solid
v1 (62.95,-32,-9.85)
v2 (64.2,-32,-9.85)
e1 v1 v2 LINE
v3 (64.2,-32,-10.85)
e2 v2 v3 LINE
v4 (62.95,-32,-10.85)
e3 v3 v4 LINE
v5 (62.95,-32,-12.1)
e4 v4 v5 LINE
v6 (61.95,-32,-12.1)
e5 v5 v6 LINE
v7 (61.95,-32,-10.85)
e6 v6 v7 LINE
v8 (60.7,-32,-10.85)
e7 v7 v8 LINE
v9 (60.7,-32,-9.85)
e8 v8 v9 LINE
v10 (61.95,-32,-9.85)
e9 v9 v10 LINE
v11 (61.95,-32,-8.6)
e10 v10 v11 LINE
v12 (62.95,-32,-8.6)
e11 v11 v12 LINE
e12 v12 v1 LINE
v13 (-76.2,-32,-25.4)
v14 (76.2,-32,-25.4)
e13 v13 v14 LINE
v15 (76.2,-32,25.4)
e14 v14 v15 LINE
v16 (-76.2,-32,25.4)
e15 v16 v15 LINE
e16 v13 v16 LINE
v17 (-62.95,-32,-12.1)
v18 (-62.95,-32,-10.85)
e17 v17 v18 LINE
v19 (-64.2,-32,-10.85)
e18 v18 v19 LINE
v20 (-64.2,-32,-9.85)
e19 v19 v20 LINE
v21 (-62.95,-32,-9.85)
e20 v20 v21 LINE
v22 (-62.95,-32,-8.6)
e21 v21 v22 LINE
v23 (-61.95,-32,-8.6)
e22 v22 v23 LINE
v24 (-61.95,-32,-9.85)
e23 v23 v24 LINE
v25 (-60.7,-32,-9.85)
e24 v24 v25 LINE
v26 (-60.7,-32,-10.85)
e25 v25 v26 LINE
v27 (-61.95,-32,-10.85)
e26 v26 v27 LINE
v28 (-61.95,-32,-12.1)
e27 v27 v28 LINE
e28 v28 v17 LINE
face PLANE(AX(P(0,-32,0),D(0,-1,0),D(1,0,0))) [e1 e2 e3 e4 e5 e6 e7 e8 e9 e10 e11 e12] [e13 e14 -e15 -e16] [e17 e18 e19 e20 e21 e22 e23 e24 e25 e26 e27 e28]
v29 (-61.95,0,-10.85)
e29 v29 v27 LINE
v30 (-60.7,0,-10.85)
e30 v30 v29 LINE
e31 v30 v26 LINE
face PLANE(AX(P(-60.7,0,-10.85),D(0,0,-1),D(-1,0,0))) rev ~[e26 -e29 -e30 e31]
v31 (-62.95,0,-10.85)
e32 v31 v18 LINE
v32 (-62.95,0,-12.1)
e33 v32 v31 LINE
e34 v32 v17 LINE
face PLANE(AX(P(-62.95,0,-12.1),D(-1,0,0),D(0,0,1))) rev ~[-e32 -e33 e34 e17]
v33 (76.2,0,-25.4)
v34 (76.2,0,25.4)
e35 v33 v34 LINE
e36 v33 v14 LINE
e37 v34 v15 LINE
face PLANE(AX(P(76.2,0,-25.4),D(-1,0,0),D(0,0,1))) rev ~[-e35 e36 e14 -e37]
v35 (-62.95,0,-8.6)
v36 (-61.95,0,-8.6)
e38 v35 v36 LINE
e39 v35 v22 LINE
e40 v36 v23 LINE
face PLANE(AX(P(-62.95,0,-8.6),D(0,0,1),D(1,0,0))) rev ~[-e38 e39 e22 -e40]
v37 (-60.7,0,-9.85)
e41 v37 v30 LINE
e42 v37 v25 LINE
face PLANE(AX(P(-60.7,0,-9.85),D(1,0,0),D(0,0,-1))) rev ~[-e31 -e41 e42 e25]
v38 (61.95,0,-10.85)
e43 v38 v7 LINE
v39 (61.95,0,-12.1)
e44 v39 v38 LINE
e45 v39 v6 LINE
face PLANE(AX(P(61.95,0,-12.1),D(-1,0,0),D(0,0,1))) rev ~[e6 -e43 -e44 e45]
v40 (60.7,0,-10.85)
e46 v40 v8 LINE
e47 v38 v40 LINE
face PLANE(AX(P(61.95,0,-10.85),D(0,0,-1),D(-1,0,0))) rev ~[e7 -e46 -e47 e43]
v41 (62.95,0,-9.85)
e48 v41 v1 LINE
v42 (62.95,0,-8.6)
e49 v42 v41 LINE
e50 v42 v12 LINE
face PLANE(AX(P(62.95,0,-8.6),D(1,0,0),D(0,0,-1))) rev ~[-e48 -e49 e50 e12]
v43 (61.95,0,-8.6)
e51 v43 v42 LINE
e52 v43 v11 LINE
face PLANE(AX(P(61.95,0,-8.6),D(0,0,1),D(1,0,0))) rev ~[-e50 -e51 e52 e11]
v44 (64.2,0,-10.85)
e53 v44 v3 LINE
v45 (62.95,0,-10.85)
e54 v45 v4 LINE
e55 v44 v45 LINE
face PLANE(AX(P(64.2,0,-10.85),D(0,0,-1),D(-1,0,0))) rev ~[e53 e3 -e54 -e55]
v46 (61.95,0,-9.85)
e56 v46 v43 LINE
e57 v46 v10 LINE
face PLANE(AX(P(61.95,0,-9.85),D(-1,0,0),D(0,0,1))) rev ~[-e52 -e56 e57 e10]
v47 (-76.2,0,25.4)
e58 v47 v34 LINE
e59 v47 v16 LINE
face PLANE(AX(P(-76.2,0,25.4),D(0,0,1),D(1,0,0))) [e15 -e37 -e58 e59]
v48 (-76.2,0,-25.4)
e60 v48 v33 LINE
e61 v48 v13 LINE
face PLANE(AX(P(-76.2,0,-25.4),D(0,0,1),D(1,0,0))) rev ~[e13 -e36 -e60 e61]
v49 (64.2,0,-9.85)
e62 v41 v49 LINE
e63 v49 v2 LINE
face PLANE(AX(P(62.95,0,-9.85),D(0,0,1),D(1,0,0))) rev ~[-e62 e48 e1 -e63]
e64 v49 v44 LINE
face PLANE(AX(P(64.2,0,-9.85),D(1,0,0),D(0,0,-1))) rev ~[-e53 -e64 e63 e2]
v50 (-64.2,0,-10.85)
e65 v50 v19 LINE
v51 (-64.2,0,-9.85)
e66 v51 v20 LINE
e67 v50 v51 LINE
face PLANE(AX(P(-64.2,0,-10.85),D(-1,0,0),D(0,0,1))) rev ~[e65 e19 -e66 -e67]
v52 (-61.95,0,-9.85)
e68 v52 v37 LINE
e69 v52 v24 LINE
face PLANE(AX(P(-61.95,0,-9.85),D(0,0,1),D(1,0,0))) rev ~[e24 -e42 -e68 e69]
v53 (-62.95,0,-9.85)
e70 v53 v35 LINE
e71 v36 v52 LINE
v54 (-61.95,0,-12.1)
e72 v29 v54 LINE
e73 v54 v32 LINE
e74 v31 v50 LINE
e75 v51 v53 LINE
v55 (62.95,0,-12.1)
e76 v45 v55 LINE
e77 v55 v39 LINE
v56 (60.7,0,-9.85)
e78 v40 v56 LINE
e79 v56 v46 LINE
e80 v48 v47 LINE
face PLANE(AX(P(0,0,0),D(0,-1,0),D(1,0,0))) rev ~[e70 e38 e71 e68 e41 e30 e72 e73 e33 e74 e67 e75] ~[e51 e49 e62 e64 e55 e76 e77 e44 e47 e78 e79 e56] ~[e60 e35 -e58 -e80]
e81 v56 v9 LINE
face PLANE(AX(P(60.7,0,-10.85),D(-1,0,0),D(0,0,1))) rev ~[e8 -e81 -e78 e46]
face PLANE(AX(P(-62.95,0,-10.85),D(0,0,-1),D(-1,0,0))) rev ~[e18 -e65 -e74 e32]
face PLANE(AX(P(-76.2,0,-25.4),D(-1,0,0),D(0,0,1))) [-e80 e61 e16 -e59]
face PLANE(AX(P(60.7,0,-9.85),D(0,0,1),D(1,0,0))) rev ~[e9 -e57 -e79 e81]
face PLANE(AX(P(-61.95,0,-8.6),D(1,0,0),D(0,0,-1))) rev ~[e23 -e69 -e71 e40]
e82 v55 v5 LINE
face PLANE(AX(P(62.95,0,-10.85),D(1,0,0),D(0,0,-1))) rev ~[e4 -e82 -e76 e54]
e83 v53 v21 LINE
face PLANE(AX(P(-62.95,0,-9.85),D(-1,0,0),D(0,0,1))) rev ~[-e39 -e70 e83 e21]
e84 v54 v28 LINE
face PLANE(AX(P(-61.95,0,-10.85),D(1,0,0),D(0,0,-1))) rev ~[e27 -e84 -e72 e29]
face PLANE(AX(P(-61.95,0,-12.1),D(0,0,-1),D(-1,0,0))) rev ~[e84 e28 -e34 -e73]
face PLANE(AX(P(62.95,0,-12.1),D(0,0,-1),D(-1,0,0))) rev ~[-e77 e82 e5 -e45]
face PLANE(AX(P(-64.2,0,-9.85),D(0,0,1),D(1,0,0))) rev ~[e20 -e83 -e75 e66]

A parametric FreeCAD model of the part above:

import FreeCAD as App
import Part
import Sketcher
from FreeCAD import Vector
Q = App.Units.Quantity


def add_polygon(sketch, points):
    """Adds a closed chain of lines whose ends are joined by coincident constraints."""
    first, n = sketch.GeometryCount, len(points)
    for a, b in zip(points, points[1:] + points[:1]):
        sketch.addGeometry(Part.LineSegment(App.Vector(*a, 0), App.Vector(*b, 0)), False)
    for i in range(n):
        sketch.addConstraint(Sketcher.Constraint("Coincident", first + i, 2, first + (i + 1) % n, 1))

doc = App.newDocument("Part")
params = doc.addObject("Spreadsheet::Sheet", "Params")
for row, (alias, value) in enumerate([
    ("sketch1_width", "1 mm"),
    ("sketch1_width2", "152.4 mm"),
    ("sketch1_height", "50.8 mm"),
    ("sketch1_width3", "1.25 mm"),
    ("pad1_length", "32 mm"),
], start=1):
    params.set(f"A{row}", alias)
    params.set(f"B{row}", "=" + value)
    params.setAlias(f"B{row}", alias)

body = doc.addObject("PartDesign::Body", "Body")

# Sketch on XZ plane
sketch1 = body.newObject("Sketcher::SketchObject", "Sketch")
sketch1.AttachmentSupport = (doc.getObject("XZ_Plane"), [""])
sketch1.MapMode = "FlatFace"
add_polygon(sketch1, [(-76.2, 25.4), (-76.2, -25.4), (76.2, -25.4), (76.2, 25.4)])  # lines 0-3
add_polygon(sketch1, [(-64.2, -9.85), (-62.95, -9.85), (-62.95, -8.6), (-61.95, -8.6), (-61.95, -9.85), (-60.7, -9.85), (-60.7, -10.85), (-61.95, -10.85), (-61.95, -12.1), (-62.95, -12.1), (-62.95, -10.85), (-64.2, -10.85)])  # lines 4-15
add_polygon(sketch1, [(60.7, -10.85), (60.7, -9.85), (61.95, -9.85), (61.95, -8.6), (62.95, -8.6), (62.95, -9.85), (64.2, -9.85), (64.2, -10.85), (62.95, -10.85), (62.95, -12.1), (61.95, -12.1), (61.95, -10.85)])  # lines 16-27
sketch1.addConstraint([
    Sketcher.Constraint("Vertical", 0),
    Sketcher.Constraint("Horizontal", 1),
    Sketcher.Constraint("Vertical", 2),
    Sketcher.Constraint("Horizontal", 3),
    Sketcher.Constraint("Horizontal", 4),
    Sketcher.Constraint("Vertical", 5),
    Sketcher.Constraint("Horizontal", 6),
    Sketcher.Constraint("Vertical", 7),
    Sketcher.Constraint("Horizontal", 8),
    Sketcher.Constraint("Vertical", 9),
    Sketcher.Constraint("Horizontal", 10),
    Sketcher.Constraint("Vertical", 11),
    Sketcher.Constraint("Horizontal", 12),
    Sketcher.Constraint("Vertical", 13),
    Sketcher.Constraint("Horizontal", 14),
    Sketcher.Constraint("Vertical", 15),
    Sketcher.Constraint("Vertical", 16),
    Sketcher.Constraint("Horizontal", 17),
    Sketcher.Constraint("Vertical", 18),
    Sketcher.Constraint("Horizontal", 19),
    Sketcher.Constraint("Vertical", 20),
    Sketcher.Constraint("Horizontal", 21),
    Sketcher.Constraint("Vertical", 22),
    Sketcher.Constraint("Horizontal", 23),
    Sketcher.Constraint("Vertical", 24),
    Sketcher.Constraint("Horizontal", 25),
    Sketcher.Constraint("Vertical", 26),
    Sketcher.Constraint("Horizontal", 27),
    Sketcher.Constraint("Symmetric", 0, 2, 2, 2, -1, 1),
    Sketcher.Constraint("Symmetric", 8, 2, 16, 2, -2),
    Sketcher.Constraint("Symmetric", 6, 2, 18, 2, -2),
    Sketcher.Constraint("Symmetric", 4, 2, 20, 2, -2),
    Sketcher.Constraint("Symmetric", 14, 2, 22, 2, -2),
    Sketcher.Constraint("Symmetric", 12, 2, 24, 2, -2),
    Sketcher.Constraint("Symmetric", 10, 2, 26, 2, -2),
    Sketcher.Constraint("Horizontal", 4, 2, 7, 2),
    Sketcher.Constraint("Horizontal", 10, 2, 13, 2),
    Sketcher.Constraint("Vertical", 7, 2, 10, 2),
    Sketcher.Constraint("Vertical", 5, 2, 12, 2),
    Sketcher.Constraint("Equal", 4, 8),
    Sketcher.Constraint("Equal", 27, 5),
    Sketcher.Constraint("Equal", 25, 9),
    Sketcher.Constraint("Equal", 7, 11),
    Sketcher.Constraint("DistanceX", 6, 1, 6, 2, Q("1 mm")),
    Sketcher.Constraint("DistanceX", 1, 1, 1, 2, Q("152.4 mm")),
    Sketcher.Constraint("DistanceY", 0, 2, 0, 1, Q("50.8 mm")),
    Sketcher.Constraint("DistanceY", 5, 2, 3, 2, Q("34 mm")),
    Sketcher.Constraint("DistanceX", 4, 1, 4, 2, Q("1.25 mm")),
    Sketcher.Constraint("DistanceX", 8, 2, -1, 1, Q("60.7 mm")),
])
sketch1.setExpression("Constraints[71]", "Params.sketch1_width")
sketch1.setExpression("Constraints[72]", "Params.sketch1_width2")
sketch1.setExpression("Constraints[73]", "Params.sketch1_height")
sketch1.setExpression("Constraints[75]", "Params.sketch1_width3")
pad1 = body.newObject("PartDesign::Pad", "Pad")
pad1.Profile = sketch1
pad1.setExpression("Length", "Params.pad1_length")

doc.recompute()
